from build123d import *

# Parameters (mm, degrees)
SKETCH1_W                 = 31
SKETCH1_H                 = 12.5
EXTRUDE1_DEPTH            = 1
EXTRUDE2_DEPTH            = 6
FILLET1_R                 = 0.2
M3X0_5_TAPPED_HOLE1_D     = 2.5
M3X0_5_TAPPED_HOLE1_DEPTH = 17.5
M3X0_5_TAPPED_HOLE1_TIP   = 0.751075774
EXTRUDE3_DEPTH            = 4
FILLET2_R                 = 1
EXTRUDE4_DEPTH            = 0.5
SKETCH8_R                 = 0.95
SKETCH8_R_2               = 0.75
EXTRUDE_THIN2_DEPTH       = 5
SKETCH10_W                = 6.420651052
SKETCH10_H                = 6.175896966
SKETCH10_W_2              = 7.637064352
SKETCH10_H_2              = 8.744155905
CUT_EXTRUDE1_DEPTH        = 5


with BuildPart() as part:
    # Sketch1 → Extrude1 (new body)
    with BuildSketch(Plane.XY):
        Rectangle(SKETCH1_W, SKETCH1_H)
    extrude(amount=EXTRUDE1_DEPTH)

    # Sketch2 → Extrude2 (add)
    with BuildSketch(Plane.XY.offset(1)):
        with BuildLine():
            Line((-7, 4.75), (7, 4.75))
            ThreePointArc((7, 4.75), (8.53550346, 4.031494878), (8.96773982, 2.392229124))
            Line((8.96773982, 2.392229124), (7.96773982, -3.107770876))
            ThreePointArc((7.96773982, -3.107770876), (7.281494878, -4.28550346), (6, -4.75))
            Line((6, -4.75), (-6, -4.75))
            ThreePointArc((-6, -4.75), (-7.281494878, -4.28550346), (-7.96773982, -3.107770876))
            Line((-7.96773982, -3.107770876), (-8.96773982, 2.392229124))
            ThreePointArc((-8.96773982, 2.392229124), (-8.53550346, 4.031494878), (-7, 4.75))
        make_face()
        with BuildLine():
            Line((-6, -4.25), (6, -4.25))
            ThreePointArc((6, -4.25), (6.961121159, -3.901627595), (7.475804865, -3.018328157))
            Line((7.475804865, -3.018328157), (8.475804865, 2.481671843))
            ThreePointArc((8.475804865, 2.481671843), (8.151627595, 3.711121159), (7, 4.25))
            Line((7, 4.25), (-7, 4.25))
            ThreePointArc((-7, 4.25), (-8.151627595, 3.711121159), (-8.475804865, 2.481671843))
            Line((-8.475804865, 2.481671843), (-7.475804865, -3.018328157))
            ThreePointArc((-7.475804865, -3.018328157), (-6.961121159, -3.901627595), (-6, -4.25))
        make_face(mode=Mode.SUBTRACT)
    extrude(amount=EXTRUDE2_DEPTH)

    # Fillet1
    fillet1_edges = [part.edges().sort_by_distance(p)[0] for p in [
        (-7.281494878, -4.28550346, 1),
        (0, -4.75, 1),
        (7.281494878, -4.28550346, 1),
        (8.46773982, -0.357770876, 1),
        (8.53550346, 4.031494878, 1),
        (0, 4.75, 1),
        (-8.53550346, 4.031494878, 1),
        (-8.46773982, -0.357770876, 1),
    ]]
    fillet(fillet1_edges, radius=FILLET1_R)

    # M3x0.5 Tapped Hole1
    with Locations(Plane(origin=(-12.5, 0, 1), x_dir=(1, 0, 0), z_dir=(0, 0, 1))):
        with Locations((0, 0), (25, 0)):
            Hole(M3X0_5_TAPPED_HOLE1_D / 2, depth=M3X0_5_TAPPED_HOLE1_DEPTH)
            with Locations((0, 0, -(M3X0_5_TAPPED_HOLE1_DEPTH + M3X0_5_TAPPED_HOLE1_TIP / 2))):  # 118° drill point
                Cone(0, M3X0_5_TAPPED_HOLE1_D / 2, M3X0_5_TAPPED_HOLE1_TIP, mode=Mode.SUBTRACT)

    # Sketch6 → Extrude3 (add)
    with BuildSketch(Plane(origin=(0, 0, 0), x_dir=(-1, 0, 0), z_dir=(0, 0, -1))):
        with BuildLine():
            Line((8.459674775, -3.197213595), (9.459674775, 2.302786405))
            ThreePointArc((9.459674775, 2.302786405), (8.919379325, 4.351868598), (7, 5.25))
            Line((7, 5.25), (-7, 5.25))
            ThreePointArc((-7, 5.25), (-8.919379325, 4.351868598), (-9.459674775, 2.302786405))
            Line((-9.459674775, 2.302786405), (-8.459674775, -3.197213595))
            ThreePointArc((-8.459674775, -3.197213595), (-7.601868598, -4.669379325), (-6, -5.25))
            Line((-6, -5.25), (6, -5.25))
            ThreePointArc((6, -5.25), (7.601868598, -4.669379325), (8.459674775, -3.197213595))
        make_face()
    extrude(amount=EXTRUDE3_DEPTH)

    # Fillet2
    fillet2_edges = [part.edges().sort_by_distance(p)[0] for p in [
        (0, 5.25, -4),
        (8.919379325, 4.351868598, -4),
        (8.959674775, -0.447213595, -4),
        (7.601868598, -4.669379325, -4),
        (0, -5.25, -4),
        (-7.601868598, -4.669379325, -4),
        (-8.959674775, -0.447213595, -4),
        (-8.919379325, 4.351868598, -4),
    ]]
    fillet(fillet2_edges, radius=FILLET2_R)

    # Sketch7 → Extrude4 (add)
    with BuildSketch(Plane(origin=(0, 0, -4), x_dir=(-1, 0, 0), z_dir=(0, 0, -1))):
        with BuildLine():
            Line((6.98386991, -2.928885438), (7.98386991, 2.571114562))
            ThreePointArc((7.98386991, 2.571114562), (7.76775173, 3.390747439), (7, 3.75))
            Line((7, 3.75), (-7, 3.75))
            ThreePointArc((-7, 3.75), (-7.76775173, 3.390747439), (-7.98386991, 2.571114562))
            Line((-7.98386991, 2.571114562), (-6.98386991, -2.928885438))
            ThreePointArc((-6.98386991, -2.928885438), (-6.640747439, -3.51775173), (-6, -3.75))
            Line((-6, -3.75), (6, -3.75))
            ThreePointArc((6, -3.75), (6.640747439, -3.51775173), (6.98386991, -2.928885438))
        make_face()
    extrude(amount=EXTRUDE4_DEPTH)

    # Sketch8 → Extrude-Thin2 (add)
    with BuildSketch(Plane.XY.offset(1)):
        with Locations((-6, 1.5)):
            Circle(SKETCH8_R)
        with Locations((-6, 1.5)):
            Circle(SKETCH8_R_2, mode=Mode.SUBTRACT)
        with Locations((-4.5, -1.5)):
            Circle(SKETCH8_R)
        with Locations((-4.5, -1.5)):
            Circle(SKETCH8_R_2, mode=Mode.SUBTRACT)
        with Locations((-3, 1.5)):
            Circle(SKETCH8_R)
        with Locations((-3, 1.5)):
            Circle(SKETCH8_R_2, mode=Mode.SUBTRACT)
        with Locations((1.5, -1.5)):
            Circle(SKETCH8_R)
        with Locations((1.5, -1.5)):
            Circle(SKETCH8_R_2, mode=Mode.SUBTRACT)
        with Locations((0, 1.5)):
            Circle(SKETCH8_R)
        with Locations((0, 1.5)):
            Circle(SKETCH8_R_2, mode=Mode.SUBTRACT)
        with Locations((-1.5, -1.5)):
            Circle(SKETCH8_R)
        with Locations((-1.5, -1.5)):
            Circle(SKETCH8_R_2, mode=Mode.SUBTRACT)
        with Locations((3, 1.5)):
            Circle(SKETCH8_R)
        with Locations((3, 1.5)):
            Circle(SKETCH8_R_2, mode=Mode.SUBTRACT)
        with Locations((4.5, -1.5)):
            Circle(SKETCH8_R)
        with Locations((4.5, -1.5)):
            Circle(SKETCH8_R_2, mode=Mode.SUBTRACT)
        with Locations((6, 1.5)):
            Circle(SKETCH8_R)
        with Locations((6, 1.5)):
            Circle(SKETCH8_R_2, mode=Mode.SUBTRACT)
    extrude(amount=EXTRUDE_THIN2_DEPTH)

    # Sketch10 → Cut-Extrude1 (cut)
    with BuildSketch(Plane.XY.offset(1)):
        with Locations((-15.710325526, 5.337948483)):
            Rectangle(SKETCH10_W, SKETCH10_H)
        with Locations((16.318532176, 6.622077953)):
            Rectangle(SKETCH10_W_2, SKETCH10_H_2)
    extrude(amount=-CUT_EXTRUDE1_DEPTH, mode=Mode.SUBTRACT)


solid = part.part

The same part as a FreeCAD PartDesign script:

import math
import FreeCAD as App
import Part
import Sketcher
from FreeCAD import Vector
Q = App.Units.Quantity


def edges_at(feature, points):
    """Names of the edges that pass closest to the given points."""
    edges = feature.Shape.Edges
    near = lambda p: min(range(len(edges)), key=lambda i: edges[i].distToShape(Part.Vertex(*p))[0])
    return sorted({f"Edge{near(p) + 1}" for p in points})


def add_polygon(sketch, points):
    """Adds a closed chain of lines whose ends are joined by coincident constraints."""
    first, n = sketch.GeometryCount, len(points)
    for a, b in zip(points, points[1:] + points[:1]):
        sketch.addGeometry(Part.LineSegment(App.Vector(*a, 0), App.Vector(*b, 0)), False)
    for i in range(n):
        sketch.addConstraint(Sketcher.Constraint("Coincident", first + i, 2, first + (i + 1) % n, 1))

doc = App.newDocument("Part")
body = doc.addObject("PartDesign::Body", "Body")

# Sketch on XY plane
sketch1 = body.newObject("Sketcher::SketchObject", "Sketch")
sketch1.AttachmentSupport = (doc.getObject("XY_Plane"), [""])
sketch1.MapMode = "FlatFace"
add_polygon(sketch1, [(-15.5, 6.25), (-15.5, -6.25), (15.5, -6.25), (15.5, 6.25)])  # lines 0-3
sketch1.addConstraint([
    Sketcher.Constraint("Vertical", 0),
    Sketcher.Constraint("Horizontal", 1),
    Sketcher.Constraint("Vertical", 2),
    Sketcher.Constraint("Horizontal", 3),
    Sketcher.Constraint("Symmetric", 0, 2, 2, 2, -1, 1),
    Sketcher.Constraint("DistanceX", 1, 1, 1, 2, Q("31 mm")),
    Sketcher.Constraint("DistanceY", 0, 2, 0, 1, Q("12.5 mm")),
])
pad1 = body.newObject("PartDesign::Pad", "Pad")
pad1.Profile = sketch1
pad1.Length = 1

# Sketch on XY plane
sketch2 = body.newObject("Sketcher::SketchObject", "Sketch001")
sketch2.AttachmentSupport = (doc.getObject("XY_Plane"), [""])
sketch2.MapMode = "FlatFace"
sketch2.AttachmentOffset = App.Placement(Vector(0, 0, 1), App.Rotation())
sketch2.addGeometry([
    Part.LineSegment(Vector(7, 4.75, 0), Vector(-7, 4.75, 0)),  # 0
    Part.ArcOfCircle(Part.Circle(Vector(-7, 2.75, 0), Vector(0, 0, 1), 2), math.radians(90), math.radians(190.304846)),  # 1
    Part.LineSegment(Vector(-8.96774, 2.392229, 0), Vector(-7.96774, -3.107771, 0)),  # 2
    Part.ArcOfCircle(Part.Circle(Vector(-6, -2.75, 0), Vector(0, 0, 1), 2), math.radians(-169.695154), math.radians(-90)),  # 3
    Part.LineSegment(Vector(-6, -4.75, 0), Vector(6, -4.75, 0)),  # 4
    Part.ArcOfCircle(Part.Circle(Vector(6, -2.75, 0), Vector(0, 0, 1), 2), math.radians(-90), math.radians(-10.304846)),  # 5
    Part.LineSegment(Vector(7.96774, -3.107771, 0), Vector(8.96774, 2.392229, 0)),  # 6
    Part.ArcOfCircle(Part.Circle(Vector(7, 2.75, 0), Vector(0, 0, 1), 2), math.radians(-10.304846), math.radians(90)),  # 7
    Part.ArcOfCircle(Part.Circle(Vector(-6, -2.75, 0), Vector(0, 0, 1), 1.5), math.radians(-169.695154), math.radians(-90)),  # 8
    Part.LineSegment(Vector(-7.475805, -3.018328, 0), Vector(-8.475805, 2.481672, 0)),  # 9
    Part.ArcOfCircle(Part.Circle(Vector(-7, 2.75, 0), Vector(0, 0, 1), 1.5), math.radians(90), math.radians(190.304846)),  # 10
    Part.LineSegment(Vector(-7, 4.25, 0), Vector(7, 4.25, 0)),  # 11
    Part.ArcOfCircle(Part.Circle(Vector(7, 2.75, 0), Vector(0, 0, 1), 1.5), math.radians(-10.304846), math.radians(90)),  # 12
    Part.LineSegment(Vector(8.475805, 2.481672, 0), Vector(7.475805, -3.018328, 0)),  # 13
    Part.ArcOfCircle(Part.Circle(Vector(6, -2.75, 0), Vector(0, 0, 1), 1.5), math.radians(-90), math.radians(-10.304846)),  # 14
    Part.LineSegment(Vector(6, -4.25, 0), Vector(-6, -4.25, 0)),  # 15
], False)
sketch2.addConstraint([
    Sketcher.Constraint("Tangent", 0, 2, 1, 1),
    Sketcher.Constraint("Tangent", 1, 2, 2, 1),
    Sketcher.Constraint("Tangent", 2, 2, 3, 1),
    Sketcher.Constraint("Tangent", 3, 2, 4, 1),
    Sketcher.Constraint("Tangent", 4, 2, 5, 1),
    Sketcher.Constraint("Tangent", 5, 2, 6, 1),
    Sketcher.Constraint("Tangent", 6, 2, 7, 1),
    Sketcher.Constraint("Tangent", 7, 2, 0, 1),
    Sketcher.Constraint("Tangent", 8, 1, 9, 1),
    Sketcher.Constraint("Tangent", 9, 2, 10, 2),
    Sketcher.Constraint("Tangent", 10, 1, 11, 1),
    Sketcher.Constraint("Tangent", 11, 2, 12, 2),
    Sketcher.Constraint("Tangent", 12, 1, 13, 1),
    Sketcher.Constraint("Tangent", 13, 2, 14, 2),
    Sketcher.Constraint("Tangent", 14, 1, 15, 1),
    Sketcher.Constraint("Tangent", 15, 2, 8, 2),
    Sketcher.Constraint("Horizontal", 0),
    Sketcher.Constraint("Horizontal", 4),
    Sketcher.Constraint("Horizontal", 11),
    Sketcher.Constraint("Horizontal", 15),
    Sketcher.Constraint("Coincident", 8, 3, 3, 3),
    Sketcher.Constraint("Coincident", 10, 3, 1, 3),
    Sketcher.Constraint("Coincident", 12, 3, 7, 3),
    Sketcher.Constraint("Coincident", 14, 3, 5, 3),
    Sketcher.Constraint("Equal", 1, 3),
    Sketcher.Constraint("Equal", 3, 5),
    Sketcher.Constraint("Equal", 5, 7),
    Sketcher.Constraint("Equal", 8, 10),
    Sketcher.Constraint("Symmetric", 2, 2, 5, 2, -2),
    Sketcher.Constraint("Radius", 1, Q("2 mm")),
    Sketcher.Constraint("Radius", 8, Q("1.5 mm")),
    Sketcher.Constraint("DistanceX", 0, 2, 0, 1, Q("14 mm")),
    Sketcher.Constraint("DistanceX", 4, 1, 4, 2, Q("12 mm")),
    Sketcher.Constraint("DistanceY", 5, 3, 11, 2, Q("7 mm")),
    Sketcher.Constraint("DistanceY", -1, 1, 1, 3, Q("2.75 mm")),
])
pad2 = body.newObject("PartDesign::Pad", "Pad001")
pad2.Profile = sketch2
pad2.Length = 6
doc.recompute()

fillet = body.newObject("PartDesign::Fillet", "Fillet")
fillet.Base = (pad2, edges_at(pad2, [
    (-7.281, -4.286, 1),
    (0, -4.75, 1),
    (7.281, -4.286, 1),
    (8.468, -0.358, 1),
    (8.536, 4.031, 1),
    (0, 4.75, 1),
    (-8.536, 4.031, 1),
    (-8.468, -0.358, 1),
]))
fillet.Radius = 0.2

# Sketch on XY plane
sketch3 = body.newObject("Sketcher::SketchObject", "Sketch002")
sketch3.AttachmentSupport = (doc.getObject("XY_Plane"), [""])
sketch3.MapMode = "FlatFace"
sketch3.AttachmentOffset = App.Placement(Vector(0, 0, 1), App.Rotation())
sketch3.addGeometry([
    Part.Circle(Vector(-12.5, 0, 0), Vector(0, 0, 1), 1.25),
    Part.Circle(Vector(12.5, 0, 0), Vector(0, 0, 1), 1.25),
], False)
sketch3.addConstraint([
    Sketcher.Constraint("Equal", 0, 1),
    Sketcher.Constraint("Symmetric", 0, 3, 1, 3, -1, 1),
    Sketcher.Constraint("PointOnObject", 0, 3, -1),
    Sketcher.Constraint("Diameter", 0, Q("2.5 mm")),
    Sketcher.Constraint("DistanceX", 0, 3, 1, 3, Q("25 mm")),
])
doc.recompute()
hole = body.newObject("PartDesign::Hole", "Hole")
hole.Profile = sketch3
hole.ThreadType = "None"
hole.Diameter = 2.5
hole.DepthType = "Dimension"
hole.Depth = 17.5
hole.DrillPoint = "Angled"
hole.DrillPointAngle = 118

# Sketch on XY plane
sketch4 = body.newObject("Sketcher::SketchObject", "Sketch003")
sketch4.AttachmentSupport = (doc.getObject("XY_Plane"), [""])
sketch4.MapMode = "FlatFace"
sketch4.addGeometry([
    Part.LineSegment(Vector(-8.459675, -3.197214, 0), Vector(-9.459675, 2.302786, 0)),  # 0
    Part.ArcOfCircle(Part.Circle(Vector(-7, 2.75, 0), Vector(0, 0, 1), 2.5), math.radians(90), math.radians(190.304846)),  # 1
    Part.LineSegment(Vector(-7, 5.25, 0), Vector(7, 5.25, 0)),  # 2
    Part.ArcOfCircle(Part.Circle(Vector(7, 2.75, 0), Vector(0, 0, 1), 2.5), math.radians(-10.304846), math.radians(90)),  # 3
    Part.LineSegment(Vector(9.459675, 2.302786, 0), Vector(8.459675, -3.197214, 0)),  # 4
    Part.ArcOfCircle(Part.Circle(Vector(6, -2.75, 0), Vector(0, 0, 1), 2.5), math.radians(-90), math.radians(-10.304846)),  # 5
    Part.LineSegment(Vector(6, -5.25, 0), Vector(-6, -5.25, 0)),  # 6
    Part.ArcOfCircle(Part.Circle(Vector(-6, -2.75, 0), Vector(0, 0, 1), 2.5), math.radians(-169.695154), math.radians(-90)),  # 7
], False)
sketch4.addConstraint([
    Sketcher.Constraint("Tangent", 0, 2, 1, 2),
    Sketcher.Constraint("Tangent", 1, 1, 2, 1),
    Sketcher.Constraint("Tangent", 2, 2, 3, 2),
    Sketcher.Constraint("Tangent", 3, 1, 4, 1),
    Sketcher.Constraint("Tangent", 4, 2, 5, 2),
    Sketcher.Constraint("Tangent", 5, 1, 6, 1),
    Sketcher.Constraint("Tangent", 6, 2, 7, 2),
    Sketcher.Constraint("Tangent", 7, 1, 0, 1),
    Sketcher.Constraint("Horizontal", 2),
    Sketcher.Constraint("Horizontal", 6),
    Sketcher.Constraint("Equal", 1, 3),
    Sketcher.Constraint("Equal", 3, 5),
    Sketcher.Constraint("Equal", 5, 7),
    Sketcher.Constraint("Symmetric", 0, 2, 3, 1, -2),
    Sketcher.Constraint("Radius", 1, Q("2.5 mm")),
    Sketcher.Constraint("DistanceX", 2, 1, 2, 2, Q("14 mm")),
    Sketcher.Constraint("DistanceX", 6, 2, 6, 1, Q("12 mm")),
    Sketcher.Constraint("DistanceY", 7, 3, 1, 1, Q("8 mm")),
    Sketcher.Constraint("DistanceY", -1, 1, 1, 3, Q("2.75 mm")),
])
pad3 = body.newObject("PartDesign::Pad", "Pad002")
pad3.Profile = sketch4
pad3.Length = 4
pad3.Reversed = True
doc.recompute()

fillet2 = body.newObject("PartDesign::Fillet", "Fillet001")
fillet2.Base = (pad3, edges_at(pad3, [
    (0, 5.25, -4),
    (8.919, 4.352, -4),
    (8.96, -0.447, -4),
    (7.602, -4.669, -4),
    (0, -5.25, -4),
    (-7.602, -4.669, -4),
    (-8.96, -0.447, -4),
    (-8.919, 4.352, -4),
]))
fillet2.Radius = 1

# Sketch on XY plane
sketch5 = body.newObject("Sketcher::SketchObject", "Sketch004")
sketch5.AttachmentSupport = (doc.getObject("XY_Plane"), [""])
sketch5.MapMode = "FlatFace"
sketch5.AttachmentOffset = App.Placement(Vector(0, 0, -4), App.Rotation())
sketch5.addGeometry([
    Part.LineSegment(Vector(-6.98387, -2.928885, 0), Vector(-7.98387, 2.571115, 0)),  # 0
    Part.ArcOfCircle(Part.Circle(Vector(-7, 2.75, 0), Vector(0, 0, 1), 1), math.radians(90), math.radians(190.304846)),  # 1
    Part.LineSegment(Vector(-7, 3.75, 0), Vector(7, 3.75, 0)),  # 2
    Part.ArcOfCircle(Part.Circle(Vector(7, 2.75, 0), Vector(0, 0, 1), 1), math.radians(-10.304846), math.radians(90)),  # 3
    Part.LineSegment(Vector(7.98387, 2.571115, 0), Vector(6.98387, -2.928885, 0)),  # 4
    Part.ArcOfCircle(Part.Circle(Vector(6, -2.75, 0), Vector(0, 0, 1), 1), math.radians(-90), math.radians(-10.304847)),  # 5
    Part.LineSegment(Vector(6, -3.75, 0), Vector(-6, -3.75, 0)),  # 6
    Part.ArcOfCircle(Part.Circle(Vector(-6, -2.75, 0), Vector(0, 0, 1), 1), math.radians(-169.695153), math.radians(-90)),  # 7
], False)
sketch5.addConstraint([
    Sketcher.Constraint("Tangent", 0, 2, 1, 2),
    Sketcher.Constraint("Tangent", 1, 1, 2, 1),
    Sketcher.Constraint("Tangent", 2, 2, 3, 2),
    Sketcher.Constraint("Tangent", 3, 1, 4, 1),
    Sketcher.Constraint("Tangent", 4, 2, 5, 2),
    Sketcher.Constraint("Tangent", 5, 1, 6, 1),
    Sketcher.Constraint("Tangent", 6, 2, 7, 2),
    Sketcher.Constraint("Tangent", 7, 1, 0, 1),
    Sketcher.Constraint("Horizontal", 2),
    Sketcher.Constraint("Horizontal", 6),
    Sketcher.Constraint("Equal", 1, 3),
    Sketcher.Constraint("Equal", 3, 5),
    Sketcher.Constraint("Equal", 5, 7),
    Sketcher.Constraint("Symmetric", 0, 2, 3, 1, -2),
    Sketcher.Constraint("Radius", 1, Q("1 mm")),
    Sketcher.Constraint("DistanceX", 2, 1, 2, 2, Q("14 mm")),
    Sketcher.Constraint("DistanceX", 6, 2, 6, 1, Q("12 mm")),
    Sketcher.Constraint("DistanceY", 5, 3, 3, 3, Q("5.5 mm")),
    Sketcher.Constraint("DistanceY", -1, 1, 1, 3, Q("2.75 mm")),
])
pad4 = body.newObject("PartDesign::Pad", "Pad003")
pad4.Profile = sketch5
pad4.Length = 0.5
pad4.Reversed = True

# Sketch on XY plane
sketch6 = body.newObject("Sketcher::SketchObject", "Sketch005")
sketch6.AttachmentSupport = (doc.getObject("XY_Plane"), [""])
sketch6.MapMode = "FlatFace"
sketch6.AttachmentOffset = App.Placement(Vector(0, 0, 1), App.Rotation())
sketch6.addGeometry([
    Part.Circle(Vector(-6, 1.5, 0), Vector(0, 0, 1), 0.95),  # 0
    Part.Circle(Vector(-6, 1.5, 0), Vector(0, 0, 1), 0.75),  # 1
    Part.Circle(Vector(-4.5, -1.5, 0), Vector(0, 0, 1), 0.95),  # 2
    Part.Circle(Vector(-4.5, -1.5, 0), Vector(0, 0, 1), 0.75),  # 3
    Part.Circle(Vector(-3, 1.5, 0), Vector(0, 0, 1), 0.95),  # 4
    Part.Circle(Vector(-3, 1.5, 0), Vector(0, 0, 1), 0.75),  # 5
    Part.Circle(Vector(1.5, -1.5, 0), Vector(0, 0, 1), 0.95),  # 6
    Part.Circle(Vector(1.5, -1.5, 0), Vector(0, 0, 1), 0.75),  # 7
    Part.Circle(Vector(0, 1.5, 0), Vector(0, 0, 1), 0.95),  # 8
    Part.Circle(Vector(0, 1.5, 0), Vector(0, 0, 1), 0.75),  # 9
    Part.Circle(Vector(-1.5, -1.5, 0), Vector(0, 0, 1), 0.95),  # 10
    Part.Circle(Vector(-1.5, -1.5, 0), Vector(0, 0, 1), 0.75),  # 11
    Part.Circle(Vector(3, 1.5, 0), Vector(0, 0, 1), 0.95),  # 12
    Part.Circle(Vector(3, 1.5, 0), Vector(0, 0, 1), 0.75),  # 13
    Part.Circle(Vector(4.5, -1.5, 0), Vector(0, 0, 1), 0.95),  # 14
    Part.Circle(Vector(4.5, -1.5, 0), Vector(0, 0, 1), 0.75),  # 15
    Part.Circle(Vector(6, 1.5, 0), Vector(0, 0, 1), 0.95),  # 16
    Part.Circle(Vector(6, 1.5, 0), Vector(0, 0, 1), 0.75),  # 17
], False)
sketch6.addConstraint([
    Sketcher.Constraint("Coincident", 1, 3, 0, 3),
    Sketcher.Constraint("Coincident", 3, 3, 2, 3),
    Sketcher.Constraint("Coincident", 5, 3, 4, 3),
    Sketcher.Constraint("Coincident", 7, 3, 6, 3),
    Sketcher.Constraint("Coincident", 9, 3, 8, 3),
    Sketcher.Constraint("Coincident", 11, 3, 10, 3),
    Sketcher.Constraint("Coincident", 13, 3, 12, 3),
    Sketcher.Constraint("Coincident", 15, 3, 14, 3),
    Sketcher.Constraint("Coincident", 17, 3, 16, 3),
    Sketcher.Constraint("Equal", 0, 2),
    Sketcher.Constraint("Equal", 1, 3),
    Sketcher.Constraint("Equal", 2, 4),
    Sketcher.Constraint("Equal", 3, 5),
    Sketcher.Constraint("Equal", 4, 6),
    Sketcher.Constraint("Equal", 5, 7),
    Sketcher.Constraint("Equal", 6, 8),
    Sketcher.Constraint("Equal", 7, 9),
    Sketcher.Constraint("Equal", 8, 10),
    Sketcher.Constraint("Equal", 9, 11),
    Sketcher.Constraint("Equal", 10, 12),
    Sketcher.Constraint("Equal", 11, 13),
    Sketcher.Constraint("Equal", 12, 14),
    Sketcher.Constraint("Equal", 13, 15),
    Sketcher.Constraint("Equal", 14, 16),
    Sketcher.Constraint("Equal", 15, 17),
    Sketcher.Constraint("Symmetric", 6, 3, 10, 3, -2),
    Sketcher.Constraint("Symmetric", 4, 3, 12, 3, -2),
    Sketcher.Constraint("Symmetric", 2, 3, 14, 3, -2),
    Sketcher.Constraint("Symmetric", 0, 3, 16, 3, -2),
    Sketcher.Constraint("PointOnObject", 8, 3, -2),
    Sketcher.Constraint("Horizontal", 1, 3, 4, 3),
    Sketcher.Constraint("Horizontal", 3, 3, 6, 3),
    Sketcher.Constraint("Horizontal", 5, 3, 8, 3),
    Sketcher.Constraint("Diameter", 0, Q("1.9 mm")),
    Sketcher.Constraint("Diameter", 1, Q("1.5 mm")),
    Sketcher.Constraint("DistanceX", 0, 3, -1, 1, Q("6 mm")),
    Sketcher.Constraint("DistanceX", 4, 3, -1, 1, Q("3 mm")),
    Sketcher.Constraint("DistanceY", 2, 3, 0, 3, Q("3 mm")),
    Sketcher.Constraint("DistanceX", 2, 3, 6, 3, Q("6 mm")),
    Sketcher.Constraint("DistanceX", 2, 3, 10, 3, Q("3 mm")),
    Sketcher.Constraint("DistanceY", -1, 1, 0, 3, Q("1.5 mm")),
])
pad5 = body.newObject("PartDesign::Pad", "Pad004")
pad5.Profile = sketch6
pad5.Length = 5

# Sketch on XY plane
sketch7 = body.newObject("Sketcher::SketchObject", "Sketch006")
sketch7.AttachmentSupport = (doc.getObject("XY_Plane"), [""])
sketch7.MapMode = "FlatFace"
sketch7.AttachmentOffset = App.Placement(Vector(0, 0, 1), App.Rotation())
add_polygon(sketch7, [(-18.920651, 8.425897), (-18.920651, 2.25), (-12.5, 2.25), (-12.5, 8.425897)])  # lines 0-3
add_polygon(sketch7, [(12.5, 10.994156), (12.5, 2.25), (20.137064, 2.25), (20.137064, 10.994156)])  # lines 4-7
sketch7.addConstraint([
    Sketcher.Constraint("Vertical", 0),
    Sketcher.Constraint("Horizontal", 1),
    Sketcher.Constraint("Vertical", 2),
    Sketcher.Constraint("Horizontal", 3),
    Sketcher.Constraint("Vertical", 4),
    Sketcher.Constraint("Horizontal", 5),
    Sketcher.Constraint("Vertical", 6),
    Sketcher.Constraint("Horizontal", 7),
    Sketcher.Constraint("Symmetric", 1, 2, 4, 2, -2),
    Sketcher.Constraint("DistanceX", 1, 2, 4, 2, Q("25 mm")),
    Sketcher.Constraint("DistanceY", -1, 1, 0, 2, Q("2.25 mm")),
    Sketcher.Constraint("DistanceX", 1, 1, 1, 2, Q("6.420651 mm")),
    Sketcher.Constraint("DistanceX", 5, 1, 5, 2, Q("7.637064 mm")),
    Sketcher.Constraint("DistanceY", 0, 2, 0, 1, Q("6.175897 mm")),
    Sketcher.Constraint("DistanceY", 4, 2, 4, 1, Q("8.744156 mm")),
])
pocket1 = body.newObject("PartDesign::Pocket", "Pocket")
pocket1.Profile = sketch7
pocket1.Length = 5

doc.recompute()
